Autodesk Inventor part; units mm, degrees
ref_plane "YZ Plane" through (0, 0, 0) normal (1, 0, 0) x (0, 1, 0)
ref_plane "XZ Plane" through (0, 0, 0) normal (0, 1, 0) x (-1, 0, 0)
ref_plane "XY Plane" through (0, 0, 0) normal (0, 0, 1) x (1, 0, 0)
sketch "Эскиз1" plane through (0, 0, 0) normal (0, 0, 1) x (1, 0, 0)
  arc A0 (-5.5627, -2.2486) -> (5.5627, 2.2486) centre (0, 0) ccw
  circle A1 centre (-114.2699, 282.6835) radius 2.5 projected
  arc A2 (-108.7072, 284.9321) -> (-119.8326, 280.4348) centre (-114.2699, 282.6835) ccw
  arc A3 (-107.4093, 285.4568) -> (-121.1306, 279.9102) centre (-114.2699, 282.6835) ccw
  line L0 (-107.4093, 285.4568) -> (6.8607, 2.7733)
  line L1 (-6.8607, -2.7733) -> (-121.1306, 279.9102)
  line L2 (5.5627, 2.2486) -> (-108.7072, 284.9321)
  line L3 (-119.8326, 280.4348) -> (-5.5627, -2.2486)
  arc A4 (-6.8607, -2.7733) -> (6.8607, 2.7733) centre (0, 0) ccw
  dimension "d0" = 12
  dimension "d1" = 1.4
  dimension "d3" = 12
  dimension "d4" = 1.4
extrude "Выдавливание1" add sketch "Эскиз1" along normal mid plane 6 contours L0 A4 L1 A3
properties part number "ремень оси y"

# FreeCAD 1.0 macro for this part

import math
import FreeCAD as App
import Part
import Sketcher
from FreeCAD import Vector
Q = App.Units.Quantity

doc = App.newDocument("Part")
params = doc.addObject("Spreadsheet::Sheet", "Params")
for row, (alias, value) in enumerate([
    ("sketch1_radius", "6 mm"),
    ("sketch1_radius2", "7.4 mm"),
    ("pad1_length", "6 mm"),
], start=1):
    params.set(f"A{row}", alias)
    params.set(f"B{row}", "=" + value)
    params.setAlias(f"B{row}", alias)

body = doc.addObject("PartDesign::Body", "Body")

sketch1 = doc.addObject("Sketcher::SketchObject", "Sketch")
body.addObject(sketch1)
sketch1.AttachmentSupport = (doc.XY_Plane, [""])
sketch1.MapMode = "FlatFace"
sketch1.addGeometry([
    Part.LineSegment(Vector(6.8607, 2.7733, 0), Vector(-107.4093, 285.4568, 0)),
    Part.ArcOfCircle(Part.Circle(Vector(-114.2699, 282.6835, 0), Vector(0, 0, 1), 7.399934), math.radians(22.010321), math.radians(202.010031)),
    Part.LineSegment(Vector(-121.1306, 279.9102, 0), Vector(-6.8607, -2.7733, 0)),
    Part.ArcOfCircle(Part.Circle(Vector(0, 0, 0), Vector(0, 0, 1), 7.400027), math.radians(-157.989969), math.radians(22.010031)),
    Part.ArcOfCircle(Part.Circle(Vector(0, 0, 0), Vector(0, 0, 1), 5.999986), math.radians(-157.990054), math.radians(22.009946)),
    Part.LineSegment(Vector(-5.5627, -2.2486, 0), Vector(-119.8326, 280.4348, 0)),
    Part.ArcOfCircle(Part.Circle(Vector(-114.2699, 282.6835, 0), Vector(0, 0, 1), 5.999986), math.radians(22.009946), math.radians(202.010831)),
    Part.LineSegment(Vector(-108.7072, 284.9321, 0), Vector(5.5627, 2.2486, 0)),
], False)
sketch1.addConstraint([
    Sketcher.Constraint("Tangent", 0, 2, 1, 1),
    Sketcher.Constraint("Tangent", 1, 2, 2, 1),
    Sketcher.Constraint("Tangent", 2, 2, 3, 1),
    Sketcher.Constraint("Tangent", 3, 2, 0, 1),
    Sketcher.Constraint("Tangent", 4, 1, 5, 1),
    Sketcher.Constraint("Tangent", 5, 2, 6, 2),
    Sketcher.Constraint("Tangent", 6, 1, 7, 1),
    Sketcher.Constraint("Tangent", 7, 2, 4, 2),
    Sketcher.Constraint("Coincident", 3, 3, -1, 1),
    Sketcher.Constraint("Coincident", 4, 3, -1, 1),
    Sketcher.Constraint("Coincident", 6, 3, 1, 3),
    Sketcher.Constraint("Equal", 1, 3),
    Sketcher.Constraint("Equal", 4, 6),
    Sketcher.Constraint("Radius", 4, Q("6 mm")),
    Sketcher.Constraint("Radius", 1, Q("7.4 mm")),
    Sketcher.Constraint("Angle", 0, Q("112.0102 deg")),
    Sketcher.Constraint("DistanceX", 1, 3, -1, 1, Q("114.27 mm")),
])
sketch1.setExpression("Constraints[13]", "Params.sketch1_radius")
sketch1.setExpression("Constraints[14]", "Params.sketch1_radius2")
pad1 = doc.addObject("PartDesign::Pad", "Pad")
body.addObject(pad1)
pad1.Profile = sketch1
pad1.setExpression("Length", "Params.pad1_length")
pad1.Midplane = True

doc.recompute()
